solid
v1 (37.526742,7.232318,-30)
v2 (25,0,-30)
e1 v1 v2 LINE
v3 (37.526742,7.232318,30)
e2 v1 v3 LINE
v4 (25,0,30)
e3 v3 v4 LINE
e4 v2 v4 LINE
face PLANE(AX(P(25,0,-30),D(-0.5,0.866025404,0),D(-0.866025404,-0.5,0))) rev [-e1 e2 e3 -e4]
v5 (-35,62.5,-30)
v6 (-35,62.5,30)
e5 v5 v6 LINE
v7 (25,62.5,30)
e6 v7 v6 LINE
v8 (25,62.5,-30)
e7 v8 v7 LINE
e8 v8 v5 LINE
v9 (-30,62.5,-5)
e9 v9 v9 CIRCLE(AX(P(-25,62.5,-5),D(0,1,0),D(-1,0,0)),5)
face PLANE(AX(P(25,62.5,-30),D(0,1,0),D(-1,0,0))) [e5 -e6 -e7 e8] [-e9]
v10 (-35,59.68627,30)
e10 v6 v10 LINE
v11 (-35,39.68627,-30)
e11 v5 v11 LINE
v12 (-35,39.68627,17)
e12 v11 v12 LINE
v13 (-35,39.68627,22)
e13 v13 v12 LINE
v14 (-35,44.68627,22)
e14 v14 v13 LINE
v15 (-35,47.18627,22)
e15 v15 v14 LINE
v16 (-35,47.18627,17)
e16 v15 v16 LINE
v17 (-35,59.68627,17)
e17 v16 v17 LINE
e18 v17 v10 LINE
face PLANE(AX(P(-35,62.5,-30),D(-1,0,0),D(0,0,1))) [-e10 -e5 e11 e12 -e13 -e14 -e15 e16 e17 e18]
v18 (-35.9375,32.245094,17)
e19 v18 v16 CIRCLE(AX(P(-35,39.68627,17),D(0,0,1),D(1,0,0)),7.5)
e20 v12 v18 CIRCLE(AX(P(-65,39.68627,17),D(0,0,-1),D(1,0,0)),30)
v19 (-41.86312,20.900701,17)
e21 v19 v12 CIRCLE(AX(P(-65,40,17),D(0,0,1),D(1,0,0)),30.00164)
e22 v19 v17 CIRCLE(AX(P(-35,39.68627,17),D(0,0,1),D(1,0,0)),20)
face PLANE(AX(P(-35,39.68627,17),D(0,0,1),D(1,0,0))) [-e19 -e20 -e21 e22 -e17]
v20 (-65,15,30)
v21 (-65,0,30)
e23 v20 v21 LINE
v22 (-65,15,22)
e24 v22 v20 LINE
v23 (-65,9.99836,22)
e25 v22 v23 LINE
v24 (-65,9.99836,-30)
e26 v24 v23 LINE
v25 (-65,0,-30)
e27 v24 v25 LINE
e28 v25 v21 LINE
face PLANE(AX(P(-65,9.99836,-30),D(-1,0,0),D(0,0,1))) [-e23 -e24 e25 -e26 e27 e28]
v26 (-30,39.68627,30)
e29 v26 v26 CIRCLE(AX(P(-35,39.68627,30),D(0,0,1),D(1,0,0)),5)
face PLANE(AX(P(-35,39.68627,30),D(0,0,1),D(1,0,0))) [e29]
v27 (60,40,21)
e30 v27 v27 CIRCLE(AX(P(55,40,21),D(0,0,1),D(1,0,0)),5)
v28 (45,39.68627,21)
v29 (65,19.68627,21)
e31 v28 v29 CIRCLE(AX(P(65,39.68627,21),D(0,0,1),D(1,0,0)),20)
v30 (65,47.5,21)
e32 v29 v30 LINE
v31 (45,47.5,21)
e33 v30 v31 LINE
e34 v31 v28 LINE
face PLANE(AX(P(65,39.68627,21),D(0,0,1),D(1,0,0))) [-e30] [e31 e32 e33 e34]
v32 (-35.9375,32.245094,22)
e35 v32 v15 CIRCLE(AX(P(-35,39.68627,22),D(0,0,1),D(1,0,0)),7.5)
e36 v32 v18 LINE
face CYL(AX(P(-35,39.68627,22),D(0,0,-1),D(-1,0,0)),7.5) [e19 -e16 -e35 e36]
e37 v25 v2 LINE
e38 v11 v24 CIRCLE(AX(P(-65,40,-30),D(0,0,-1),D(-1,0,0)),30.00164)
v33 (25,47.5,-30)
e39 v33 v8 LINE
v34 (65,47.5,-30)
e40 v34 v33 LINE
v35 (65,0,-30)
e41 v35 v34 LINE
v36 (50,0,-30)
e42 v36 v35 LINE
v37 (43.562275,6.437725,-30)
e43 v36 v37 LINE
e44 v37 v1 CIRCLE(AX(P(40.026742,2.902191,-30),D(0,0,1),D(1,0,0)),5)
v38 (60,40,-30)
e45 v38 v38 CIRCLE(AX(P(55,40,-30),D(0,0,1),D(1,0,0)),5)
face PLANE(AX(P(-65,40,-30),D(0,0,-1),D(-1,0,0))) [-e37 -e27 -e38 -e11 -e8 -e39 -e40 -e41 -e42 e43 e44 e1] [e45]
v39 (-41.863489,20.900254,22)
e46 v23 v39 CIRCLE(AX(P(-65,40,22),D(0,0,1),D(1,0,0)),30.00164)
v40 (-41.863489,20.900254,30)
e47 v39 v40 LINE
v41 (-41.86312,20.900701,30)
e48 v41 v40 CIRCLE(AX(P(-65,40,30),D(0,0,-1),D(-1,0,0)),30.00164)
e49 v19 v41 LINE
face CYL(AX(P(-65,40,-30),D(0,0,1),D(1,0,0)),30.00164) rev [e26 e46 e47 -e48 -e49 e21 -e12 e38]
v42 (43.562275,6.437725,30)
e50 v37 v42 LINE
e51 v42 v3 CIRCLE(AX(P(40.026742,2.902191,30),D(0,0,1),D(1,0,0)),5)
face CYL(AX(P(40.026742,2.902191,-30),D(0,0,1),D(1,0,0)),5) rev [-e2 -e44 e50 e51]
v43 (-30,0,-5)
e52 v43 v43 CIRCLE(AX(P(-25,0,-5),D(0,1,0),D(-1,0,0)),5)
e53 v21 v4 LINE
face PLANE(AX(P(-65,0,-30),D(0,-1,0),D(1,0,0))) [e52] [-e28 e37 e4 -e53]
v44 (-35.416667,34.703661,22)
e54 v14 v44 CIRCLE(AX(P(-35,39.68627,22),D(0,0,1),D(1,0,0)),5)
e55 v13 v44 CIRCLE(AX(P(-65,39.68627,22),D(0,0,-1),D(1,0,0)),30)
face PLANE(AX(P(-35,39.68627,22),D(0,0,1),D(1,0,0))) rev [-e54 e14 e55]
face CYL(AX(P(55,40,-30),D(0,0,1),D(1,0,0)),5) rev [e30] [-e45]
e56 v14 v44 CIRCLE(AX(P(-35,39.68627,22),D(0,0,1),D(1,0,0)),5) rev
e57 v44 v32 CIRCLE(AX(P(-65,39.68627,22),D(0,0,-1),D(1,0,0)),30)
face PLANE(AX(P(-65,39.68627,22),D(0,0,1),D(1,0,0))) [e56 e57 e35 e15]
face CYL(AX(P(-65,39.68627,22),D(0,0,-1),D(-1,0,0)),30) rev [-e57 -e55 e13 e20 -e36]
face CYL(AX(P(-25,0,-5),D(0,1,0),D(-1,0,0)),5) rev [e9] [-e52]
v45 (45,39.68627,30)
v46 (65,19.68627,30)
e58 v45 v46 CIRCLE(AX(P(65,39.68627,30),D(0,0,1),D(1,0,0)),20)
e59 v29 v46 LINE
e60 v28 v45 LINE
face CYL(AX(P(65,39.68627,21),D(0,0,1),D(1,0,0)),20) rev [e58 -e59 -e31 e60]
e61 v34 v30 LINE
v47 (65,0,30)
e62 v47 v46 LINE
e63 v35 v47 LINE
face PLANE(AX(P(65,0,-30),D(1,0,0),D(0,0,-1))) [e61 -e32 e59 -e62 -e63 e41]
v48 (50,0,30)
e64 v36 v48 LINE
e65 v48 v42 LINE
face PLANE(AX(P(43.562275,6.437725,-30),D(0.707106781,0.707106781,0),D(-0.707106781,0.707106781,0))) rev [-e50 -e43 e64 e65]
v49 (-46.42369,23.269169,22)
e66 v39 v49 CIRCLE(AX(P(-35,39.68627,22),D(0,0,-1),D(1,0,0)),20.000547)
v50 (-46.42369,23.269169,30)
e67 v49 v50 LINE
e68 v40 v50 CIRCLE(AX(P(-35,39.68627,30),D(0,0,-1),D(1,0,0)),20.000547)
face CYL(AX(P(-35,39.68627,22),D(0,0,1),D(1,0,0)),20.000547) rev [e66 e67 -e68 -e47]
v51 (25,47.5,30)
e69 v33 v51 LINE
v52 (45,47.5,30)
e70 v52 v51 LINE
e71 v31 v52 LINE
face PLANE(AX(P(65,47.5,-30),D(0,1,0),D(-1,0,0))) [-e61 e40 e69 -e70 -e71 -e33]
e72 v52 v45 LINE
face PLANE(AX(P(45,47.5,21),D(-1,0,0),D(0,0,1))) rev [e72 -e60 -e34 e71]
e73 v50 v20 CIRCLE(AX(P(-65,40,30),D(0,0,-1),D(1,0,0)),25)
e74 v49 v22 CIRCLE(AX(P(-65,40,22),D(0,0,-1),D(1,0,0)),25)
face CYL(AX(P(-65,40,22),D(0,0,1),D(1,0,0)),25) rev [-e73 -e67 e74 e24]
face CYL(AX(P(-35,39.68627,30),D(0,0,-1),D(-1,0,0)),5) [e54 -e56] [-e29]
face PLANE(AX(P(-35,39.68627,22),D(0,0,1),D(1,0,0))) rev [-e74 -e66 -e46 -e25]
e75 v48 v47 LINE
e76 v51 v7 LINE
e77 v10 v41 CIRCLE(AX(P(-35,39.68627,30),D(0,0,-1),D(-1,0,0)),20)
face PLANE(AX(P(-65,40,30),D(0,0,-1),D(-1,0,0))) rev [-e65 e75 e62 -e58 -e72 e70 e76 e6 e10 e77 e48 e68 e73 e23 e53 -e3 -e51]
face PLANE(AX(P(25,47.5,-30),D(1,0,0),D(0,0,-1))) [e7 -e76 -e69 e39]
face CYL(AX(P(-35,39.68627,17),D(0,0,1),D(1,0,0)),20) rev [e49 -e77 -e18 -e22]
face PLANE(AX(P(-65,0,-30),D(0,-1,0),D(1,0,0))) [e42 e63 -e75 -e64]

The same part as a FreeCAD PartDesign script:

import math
import FreeCAD as App
import Part
import Sketcher
from FreeCAD import Vector
Q = App.Units.Quantity

doc = App.newDocument("Part")
body = doc.addObject("PartDesign::Body", "Body")

sketch1 = body.newObject("Sketcher::SketchObject", "Sketch")
sketch1.AttachmentSupport = (doc.getObject("XY_Plane"), [""])
sketch1.MapMode = "FlatFace"
sketch1.addGeometry([
    Part.LineSegment(Vector(-65, 9.99836, 0), Vector(-65, 0, 0)),
    Part.LineSegment(Vector(-65, 0, 0), Vector(65, 0, 0)),
    Part.LineSegment(Vector(65, 0, 0), Vector(65, 47.5, 0)),
    Part.LineSegment(Vector(65, 47.5, 0), Vector(25, 47.5, 0)),
    Part.LineSegment(Vector(25, 47.5, 0), Vector(25, 62.5, 0)),
    Part.LineSegment(Vector(25, 62.5, 0), Vector(-35, 62.5, 0)),
    Part.LineSegment(Vector(-35, 62.5, 0), Vector(-35, 39.68627, 0)),
    Part.ArcOfCircle(Part.Circle(Vector(-65, 40, 0), Vector(0, 0, 1), 30.00164), math.radians(-90), math.radians(-0.599159)),
], False)
sketch1.addConstraint([
    Sketcher.Constraint("Coincident", 0, 2, 1, 1),
    Sketcher.Constraint("Coincident", 1, 2, 2, 1),
    Sketcher.Constraint("Coincident", 2, 2, 3, 1),
    Sketcher.Constraint("Coincident", 3, 2, 4, 1),
    Sketcher.Constraint("Coincident", 4, 2, 5, 1),
    Sketcher.Constraint("Coincident", 5, 2, 6, 1),
    Sketcher.Constraint("Coincident", 6, 2, 7, 2),
    Sketcher.Constraint("Coincident", 7, 1, 0, 1),
    Sketcher.Constraint("Vertical", 0),
    Sketcher.Constraint("Horizontal", 1),
    Sketcher.Constraint("Vertical", 2),
    Sketcher.Constraint("Horizontal", 3),
    Sketcher.Constraint("Vertical", 4),
    Sketcher.Constraint("Horizontal", 5),
    Sketcher.Constraint("Vertical", 6),
    Sketcher.Constraint("Symmetric", 0, 2, 1, 2, -1, 1),
    Sketcher.Constraint("Vertical", 7, 3, 0, 2),
    Sketcher.Constraint("DistanceX", 1, 1, 1, 2, 130.0),
    Sketcher.Constraint("DistanceX", 3, 2, 3, 1, 40.0),
    Sketcher.Constraint("DistanceX", 5, 2, 5, 1, 60.0),
    Sketcher.Constraint("DistanceY", 4, 1, 4, 2, 15.0),
    Sketcher.Constraint("DistanceY", 2, 1, 2, 2, 47.5),
    Sketcher.Constraint("DistanceY", -1, 1, 7, 3, 40.0),
    Sketcher.Constraint("Radius", 7, 30.00164),
])
pad1 = body.newObject("PartDesign::Pad", "Pad")
pad1.Profile = sketch1
pad1.Type = "TwoLengths"
pad1.Length = 30
pad1.Length2 = 30

sketch2 = body.newObject("Sketcher::SketchObject", "Sketch001")
sketch2.AttachmentSupport = (doc.getObject("XY_Plane"), [""])
sketch2.MapMode = "FlatFace"
sketch2.AttachmentOffset = App.Placement(Vector(0, 0, 30), App.Rotation())
sketch2.addGeometry([
    Part.LineSegment(Vector(-35, 60, 0), Vector(-35, 40, 0)),
    Part.ArcOfCircle(Part.Circle(Vector(-65, 40, 0), Vector(0, 0, 1), 30), math.radians(-40), math.radians(-1)),
    Part.ArcOfCircle(Part.Circle(Vector(-35, 40, 0), Vector(0, 0, 1), 20), math.radians(-110), math.radians(90)),
], False)
sketch2.addConstraint([
    Sketcher.Constraint("Coincident", 0, 2, 1, 2),
    Sketcher.Constraint("Coincident", 1, 1, 2, 1),
    Sketcher.Constraint("Coincident", 2, 2, 0, 1),
    Sketcher.Constraint("Radius", 1, 30.0),
    Sketcher.Constraint("Radius", 2, 20.0),
    Sketcher.Constraint("DistanceX", 1, 3, -1, 1, 65.0),
    Sketcher.Constraint("DistanceY", -1, 1, 1, 3, 40.0),
    Sketcher.Constraint("DistanceX", 2, 3, -1, 1, 35.0),
    Sketcher.Constraint("DistanceX", 2, 2, -1, 1, 35.0),
    Sketcher.Constraint("DistanceY", -1, 1, 1, 1, 20.901298),
    Sketcher.Constraint("DistanceY", 1, 1, 0, 2, 18.812218),
])
pocket1 = body.newObject("PartDesign::Pocket", "Pocket")
pocket1.Profile = sketch2
pocket1.Length = 13

sketch3 = body.newObject("Sketcher::SketchObject", "Sketch002")
sketch3.AttachmentSupport = (doc.getObject("XY_Plane"), [""])
sketch3.MapMode = "FlatFace"
sketch3.AttachmentOffset = App.Placement(Vector(0, 0, 22), App.Rotation())
sketch3.addGeometry([
    Part.LineSegment(Vector(-65, 15, 0), Vector(-65, 10, 0)),
    Part.ArcOfCircle(Part.Circle(Vector(-65, 40, 0), Vector(0, 0, 1), 30), math.radians(-90), math.radians(-40)),
    Part.ArcOfCircle(Part.Circle(Vector(-35, 40, 0), Vector(0, 0, 1), 20), math.radians(-124.83), math.radians(-110.07)),
    Part.ArcOfCircle(Part.Circle(Vector(-65, 40, 0), Vector(0, 0, 1), 25), math.radians(-90), math.radians(-42)),
], False)
sketch3.addConstraint([
    Sketcher.Constraint("Coincident", 0, 2, 1, 1),
    Sketcher.Constraint("Coincident", 1, 2, 2, 2),
    Sketcher.Constraint("Coincident", 2, 1, 3, 2),
    Sketcher.Constraint("Coincident", 3, 1, 0, 1),
    Sketcher.Constraint("Vertical", 0),
    Sketcher.Constraint("Coincident", 3, 3, 1, 3),
    Sketcher.Constraint("Vertical", 3, 3, 0, 2),
    Sketcher.Constraint("Radius", 3, 25.0),
    Sketcher.Constraint("DistanceX", 1, 3, -1, 1, 65.0),
    Sketcher.Constraint("DistanceY", -1, 1, 1, 3, 40.0),
    Sketcher.Constraint("DistanceX", 2, 3, -1, 1, 35.0),
    Sketcher.Constraint("Radius", 1, 30.00164),
    Sketcher.Constraint("Radius", 2, 20.000547),
    Sketcher.Constraint("DistanceX", 2, 1, 1, 2, 4.5602),
])
pad2 = body.newObject("PartDesign::Pad", "Pad001")
pad2.Profile = sketch3
pad2.Length = 8

sketch4 = body.newObject("Sketcher::SketchObject", "Sketch003")
sketch4.AttachmentSupport = (doc.getObject("XY_Plane"), [""])
sketch4.MapMode = "FlatFace"
sketch4.AttachmentOffset = App.Placement(Vector(0, 0, 17), App.Rotation())
sketch4.addGeometry([
    Part.LineSegment(Vector(-35, 47, 0), Vector(-35, 40, 0)),
    Part.ArcOfCircle(Part.Circle(Vector(-65, 40, 0), Vector(0, 0, 1), 30), math.radians(-14.36), math.radians(0)),
    Part.ArcOfCircle(Part.Circle(Vector(-35, 40, 0), Vector(0, 0, 1), 8), math.radians(-97), math.radians(90)),
], False)
sketch4.addConstraint([
    Sketcher.Constraint("Tangent", 0, 2, 1, 2),
    Sketcher.Constraint("Coincident", 1, 1, 2, 1),
    Sketcher.Constraint("Coincident", 2, 2, 0, 1),
    Sketcher.Constraint("Vertical", 0),
    Sketcher.Constraint("Coincident", 0, 2, 2, 3),
    Sketcher.Constraint("Radius", 1, 30.0),
    Sketcher.Constraint("Radius", 2, 7.5),
    Sketcher.Constraint("DistanceX", 1, 3, -1, 1, 65.0),
    Sketcher.Constraint("DistanceY", -1, 1, 1, 3, 39.68627),
])
pad3 = body.newObject("PartDesign::Pad", "Pad002")
pad3.Profile = sketch4
pad3.Length = 5

sketch5 = body.newObject("Sketcher::SketchObject", "Sketch004")
sketch5.AttachmentSupport = (doc.getObject("XY_Plane"), [""])
sketch5.MapMode = "FlatFace"
sketch5.AttachmentOffset = App.Placement(Vector(0, 0, 22), App.Rotation())
sketch5.addGeometry(Part.Circle(Vector(-35, 40, 0), Vector(0, 0, 1), 5), False)
sketch5.addConstraint([
    Sketcher.Constraint("Diameter", 0, 10.0),
    Sketcher.Constraint("DistanceX", 0, 3, -1, 1, 35.0),
    Sketcher.Constraint("DistanceY", -1, 1, 0, 3, 39.68627),
])
pad4 = body.newObject("PartDesign::Pad", "Pad003")
pad4.Profile = sketch5
pad4.Length = 8

sketch6 = body.newObject("Sketcher::SketchObject", "Sketch005")
sketch6.AttachmentSupport = (doc.getObject("XY_Plane"), [""])
sketch6.MapMode = "FlatFace"
sketch6.AttachmentOffset = App.Placement(Vector(0, 0, 30), App.Rotation())
sketch6.addGeometry([
    Part.LineSegment(Vector(65, 48, 0), Vector(45, 48, 0)),
    Part.LineSegment(Vector(45, 48, 0), Vector(45, 40, 0)),
    Part.ArcOfCircle(Part.Circle(Vector(65, 40, 0), Vector(0, 0, 1), 20), math.radians(180), math.radians(270)),
    Part.LineSegment(Vector(65, 20, 0), Vector(65, 48, 0)),
], False)
sketch6.addConstraint([
    Sketcher.Constraint("Coincident", 0, 2, 1, 1),
    Sketcher.Constraint("Tangent", 1, 2, 2, 1),
    Sketcher.Constraint("Coincident", 2, 2, 3, 1),
    Sketcher.Constraint("Coincident", 3, 2, 0, 1),
    Sketcher.Constraint("Horizontal", 0),
    Sketcher.Constraint("Vertical", 1),
    Sketcher.Constraint("Vertical", 3),
    Sketcher.Constraint("Radius", 2, 20.0),
    Sketcher.Constraint("DistanceX", 0, 2, 0, 1, 20.0),
    Sketcher.Constraint("DistanceX", -1, 1, 2, 3, 65.0),
    Sketcher.Constraint("DistanceY", -1, 1, 0, 2, 47.5),
    Sketcher.Constraint("DistanceY", 1, 2, 1, 1, 7.81373),
])
pocket2 = body.newObject("PartDesign::Pocket", "Pocket001")
pocket2.Profile = sketch6
pocket2.Length = 9

sketch7 = body.newObject("Sketcher::SketchObject", "Sketch006")
sketch7.AttachmentSupport = (doc.getObject("XY_Plane"), [""])
sketch7.MapMode = "FlatFace"
sketch7.AttachmentOffset = App.Placement(Vector(0, 0, 21), App.Rotation())
sketch7.addGeometry(Part.Circle(Vector(55, 40, 0), Vector(0, 0, 1), 5), False)
sketch7.addConstraint([
    Sketcher.Constraint("Diameter", 0, 10.0),
    Sketcher.Constraint("DistanceX", -1, 1, 0, 3, 55.0),
    Sketcher.Constraint("DistanceY", -1, 1, 0, 3, 40.0),
])
pocket3 = body.newObject("PartDesign::Pocket", "Pocket002")
pocket3.Profile = sketch7
pocket3.Type = "ThroughAll"

sketch8 = body.newObject("Sketcher::SketchObject", "Sketch007")
sketch8.AttachmentSupport = (doc.getObject("XZ_Plane"), [""])
sketch8.MapMode = "FlatFace"
sketch8.AttachmentOffset = App.Placement(Vector(0, 0, -62.5), App.Rotation())
sketch8.addGeometry(Part.Circle(Vector(-25, -5, 0), Vector(0, 0, 1), 5), False)
sketch8.addConstraint([
    Sketcher.Constraint("Diameter", 0, 10.0),
    Sketcher.Constraint("DistanceX", 0, 3, -1, 1, 25.0),
    Sketcher.Constraint("DistanceY", 0, 3, -1, 1, 5.0),
])
pocket4 = body.newObject("PartDesign::Pocket", "Pocket003")
pocket4.Profile = sketch8
pocket4.Type = "ThroughAll"
pocket4.Reversed = True

sketch9 = body.newObject("Sketcher::SketchObject", "Sketch008")
sketch9.AttachmentSupport = (doc.getObject("XY_Plane"), [""])
sketch9.MapMode = "FlatFace"
sketch9.AttachmentOffset = App.Placement(Vector(0, 0, 30), App.Rotation())
sketch9.addGeometry([
    Part.LineSegment(Vector(25, 0, 0), Vector(50, 0, 0)),
    Part.LineSegment(Vector(50, 0, 0), Vector(44, 6, 0)),
    Part.ArcOfCircle(Part.Circle(Vector(40, 3, 0), Vector(0, 0, 1), 5), math.radians(45), math.radians(120)),
    Part.LineSegment(Vector(38, 7, 0), Vector(25, 0, 0)),
], False)
sketch9.addConstraint([
    Sketcher.Constraint("Coincident", 0, 2, 1, 1),
    Sketcher.Constraint("Tangent", 1, 2, 2, 1),
    Sketcher.Constraint("Tangent", 2, 2, 3, 1),
    Sketcher.Constraint("Coincident", 3, 2, 0, 1),
    Sketcher.Constraint("Horizontal", 0),
    Sketcher.Constraint("PointOnObject", 0, 2, -1),
    Sketcher.Constraint("Radius", 2, 5.0),
    Sketcher.Constraint("DistanceX", 0, 1, 0, 2, 25.0),
    Sketcher.Constraint("Angle", 1, Q("135 deg")),
    Sketcher.Constraint("Angle", 3, Q("-150 deg")),
    Sketcher.Constraint("DistanceX", -1, 1, 0, 2, 50.0),
])
pocket5 = body.newObject("PartDesign::Pocket", "Pocket004")
pocket5.Profile = sketch9
pocket5.Type = "ThroughAll"

doc.recompute()
